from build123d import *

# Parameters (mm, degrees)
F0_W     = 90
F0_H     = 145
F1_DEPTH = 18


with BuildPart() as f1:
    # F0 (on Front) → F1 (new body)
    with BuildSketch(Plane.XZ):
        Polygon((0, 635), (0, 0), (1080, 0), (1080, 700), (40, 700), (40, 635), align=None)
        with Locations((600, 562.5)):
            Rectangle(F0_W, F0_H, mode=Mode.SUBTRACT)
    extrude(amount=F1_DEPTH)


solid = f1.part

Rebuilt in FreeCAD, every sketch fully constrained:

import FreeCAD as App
import Part
import Sketcher
Q = App.Units.Quantity

doc = App.newDocument("Part")
body = doc.addObject("PartDesign::Body", "Body")

# Sketch on XZ plane
sketch1 = body.newObject("Sketcher::SketchObject", "Sketch")
sketch1.AttachmentSupport = (doc.getObject("XZ_Plane"), [""])
sketch1.MapMode = "FlatFace"
sketch1.addGeometry(Part.LineSegment(App.Vector(0, 635, 0), App.Vector(0, 0, 0)), False)
sketch1.addGeometry(Part.LineSegment(App.Vector(0, 0, 0), App.Vector(1080, 0, 0)), False)
sketch1.addGeometry(Part.LineSegment(App.Vector(1080, 0, 0), App.Vector(1080, 700, 0)), False)
sketch1.addGeometry(Part.LineSegment(App.Vector(1080, 700, 0), App.Vector(40, 700, 0)), False)
sketch1.addGeometry(Part.LineSegment(App.Vector(40, 700, 0), App.Vector(40, 635, 0)), False)
sketch1.addGeometry(Part.LineSegment(App.Vector(40, 635, 0), App.Vector(0, 635, 0)), False)
sketch1.addGeometry(Part.LineSegment(App.Vector(645, 490, 0), App.Vector(555, 490, 0)), False)
sketch1.addGeometry(Part.LineSegment(App.Vector(555, 490, 0), App.Vector(555, 635, 0)), False)
sketch1.addGeometry(Part.LineSegment(App.Vector(555, 635, 0), App.Vector(645, 635, 0)), False)
sketch1.addGeometry(Part.LineSegment(App.Vector(645, 635, 0), App.Vector(645, 490, 0)), False)
sketch1.addConstraint(Sketcher.Constraint("Coincident", 0, 2, 1, 1))
sketch1.addConstraint(Sketcher.Constraint("Coincident", 1, 2, 2, 1))
sketch1.addConstraint(Sketcher.Constraint("Coincident", 2, 2, 3, 1))
sketch1.addConstraint(Sketcher.Constraint("Coincident", 3, 2, 4, 1))
sketch1.addConstraint(Sketcher.Constraint("Coincident", 4, 2, 5, 1))
sketch1.addConstraint(Sketcher.Constraint("Coincident", 5, 2, 0, 1))
sketch1.addConstraint(Sketcher.Constraint("Coincident", 6, 2, 7, 1))
sketch1.addConstraint(Sketcher.Constraint("Coincident", 7, 2, 8, 1))
sketch1.addConstraint(Sketcher.Constraint("Coincident", 8, 2, 9, 1))
sketch1.addConstraint(Sketcher.Constraint("Coincident", 9, 2, 6, 1))
sketch1.addConstraint(Sketcher.Constraint("Vertical", 0))
sketch1.addConstraint(Sketcher.Constraint("Horizontal", 1))
sketch1.addConstraint(Sketcher.Constraint("Vertical", 2))
sketch1.addConstraint(Sketcher.Constraint("Horizontal", 3))
sketch1.addConstraint(Sketcher.Constraint("Vertical", 4))
sketch1.addConstraint(Sketcher.Constraint("Horizontal", 5))
sketch1.addConstraint(Sketcher.Constraint("Horizontal", 6))
sketch1.addConstraint(Sketcher.Constraint("Vertical", 7))
sketch1.addConstraint(Sketcher.Constraint("Horizontal", 8))
sketch1.addConstraint(Sketcher.Constraint("Vertical", 9))
sketch1.addConstraint(Sketcher.Constraint("Coincident", 0, 2, -1, 1))
sketch1.addConstraint(Sketcher.Constraint("Horizontal", 5, 2, 7, 2))
sketch1.addConstraint(Sketcher.Constraint("DistanceX", 1, 1, 1, 2, Q("1080 mm")))
sketch1.addConstraint(Sketcher.Constraint("DistanceX", 3, 2, 3, 1, Q("1040 mm")))
sketch1.addConstraint(Sketcher.Constraint("DistanceX", 6, 2, 6, 1, Q("90 mm")))
sketch1.addConstraint(Sketcher.Constraint("DistanceY", 0, 2, 0, 1, Q("635 mm")))
sketch1.addConstraint(Sketcher.Constraint("DistanceY", 2, 1, 2, 2, Q("700 mm")))
sketch1.addConstraint(Sketcher.Constraint("DistanceY", 7, 1, 7, 2, Q("145 mm")))
sketch1.addConstraint(Sketcher.Constraint("DistanceX", -1, 1, 6, 2, Q("555 mm")))
pad1 = body.newObject("PartDesign::Pad", "Pad")
pad1.Profile = sketch1
pad1.Length = 18

doc.recompute()
